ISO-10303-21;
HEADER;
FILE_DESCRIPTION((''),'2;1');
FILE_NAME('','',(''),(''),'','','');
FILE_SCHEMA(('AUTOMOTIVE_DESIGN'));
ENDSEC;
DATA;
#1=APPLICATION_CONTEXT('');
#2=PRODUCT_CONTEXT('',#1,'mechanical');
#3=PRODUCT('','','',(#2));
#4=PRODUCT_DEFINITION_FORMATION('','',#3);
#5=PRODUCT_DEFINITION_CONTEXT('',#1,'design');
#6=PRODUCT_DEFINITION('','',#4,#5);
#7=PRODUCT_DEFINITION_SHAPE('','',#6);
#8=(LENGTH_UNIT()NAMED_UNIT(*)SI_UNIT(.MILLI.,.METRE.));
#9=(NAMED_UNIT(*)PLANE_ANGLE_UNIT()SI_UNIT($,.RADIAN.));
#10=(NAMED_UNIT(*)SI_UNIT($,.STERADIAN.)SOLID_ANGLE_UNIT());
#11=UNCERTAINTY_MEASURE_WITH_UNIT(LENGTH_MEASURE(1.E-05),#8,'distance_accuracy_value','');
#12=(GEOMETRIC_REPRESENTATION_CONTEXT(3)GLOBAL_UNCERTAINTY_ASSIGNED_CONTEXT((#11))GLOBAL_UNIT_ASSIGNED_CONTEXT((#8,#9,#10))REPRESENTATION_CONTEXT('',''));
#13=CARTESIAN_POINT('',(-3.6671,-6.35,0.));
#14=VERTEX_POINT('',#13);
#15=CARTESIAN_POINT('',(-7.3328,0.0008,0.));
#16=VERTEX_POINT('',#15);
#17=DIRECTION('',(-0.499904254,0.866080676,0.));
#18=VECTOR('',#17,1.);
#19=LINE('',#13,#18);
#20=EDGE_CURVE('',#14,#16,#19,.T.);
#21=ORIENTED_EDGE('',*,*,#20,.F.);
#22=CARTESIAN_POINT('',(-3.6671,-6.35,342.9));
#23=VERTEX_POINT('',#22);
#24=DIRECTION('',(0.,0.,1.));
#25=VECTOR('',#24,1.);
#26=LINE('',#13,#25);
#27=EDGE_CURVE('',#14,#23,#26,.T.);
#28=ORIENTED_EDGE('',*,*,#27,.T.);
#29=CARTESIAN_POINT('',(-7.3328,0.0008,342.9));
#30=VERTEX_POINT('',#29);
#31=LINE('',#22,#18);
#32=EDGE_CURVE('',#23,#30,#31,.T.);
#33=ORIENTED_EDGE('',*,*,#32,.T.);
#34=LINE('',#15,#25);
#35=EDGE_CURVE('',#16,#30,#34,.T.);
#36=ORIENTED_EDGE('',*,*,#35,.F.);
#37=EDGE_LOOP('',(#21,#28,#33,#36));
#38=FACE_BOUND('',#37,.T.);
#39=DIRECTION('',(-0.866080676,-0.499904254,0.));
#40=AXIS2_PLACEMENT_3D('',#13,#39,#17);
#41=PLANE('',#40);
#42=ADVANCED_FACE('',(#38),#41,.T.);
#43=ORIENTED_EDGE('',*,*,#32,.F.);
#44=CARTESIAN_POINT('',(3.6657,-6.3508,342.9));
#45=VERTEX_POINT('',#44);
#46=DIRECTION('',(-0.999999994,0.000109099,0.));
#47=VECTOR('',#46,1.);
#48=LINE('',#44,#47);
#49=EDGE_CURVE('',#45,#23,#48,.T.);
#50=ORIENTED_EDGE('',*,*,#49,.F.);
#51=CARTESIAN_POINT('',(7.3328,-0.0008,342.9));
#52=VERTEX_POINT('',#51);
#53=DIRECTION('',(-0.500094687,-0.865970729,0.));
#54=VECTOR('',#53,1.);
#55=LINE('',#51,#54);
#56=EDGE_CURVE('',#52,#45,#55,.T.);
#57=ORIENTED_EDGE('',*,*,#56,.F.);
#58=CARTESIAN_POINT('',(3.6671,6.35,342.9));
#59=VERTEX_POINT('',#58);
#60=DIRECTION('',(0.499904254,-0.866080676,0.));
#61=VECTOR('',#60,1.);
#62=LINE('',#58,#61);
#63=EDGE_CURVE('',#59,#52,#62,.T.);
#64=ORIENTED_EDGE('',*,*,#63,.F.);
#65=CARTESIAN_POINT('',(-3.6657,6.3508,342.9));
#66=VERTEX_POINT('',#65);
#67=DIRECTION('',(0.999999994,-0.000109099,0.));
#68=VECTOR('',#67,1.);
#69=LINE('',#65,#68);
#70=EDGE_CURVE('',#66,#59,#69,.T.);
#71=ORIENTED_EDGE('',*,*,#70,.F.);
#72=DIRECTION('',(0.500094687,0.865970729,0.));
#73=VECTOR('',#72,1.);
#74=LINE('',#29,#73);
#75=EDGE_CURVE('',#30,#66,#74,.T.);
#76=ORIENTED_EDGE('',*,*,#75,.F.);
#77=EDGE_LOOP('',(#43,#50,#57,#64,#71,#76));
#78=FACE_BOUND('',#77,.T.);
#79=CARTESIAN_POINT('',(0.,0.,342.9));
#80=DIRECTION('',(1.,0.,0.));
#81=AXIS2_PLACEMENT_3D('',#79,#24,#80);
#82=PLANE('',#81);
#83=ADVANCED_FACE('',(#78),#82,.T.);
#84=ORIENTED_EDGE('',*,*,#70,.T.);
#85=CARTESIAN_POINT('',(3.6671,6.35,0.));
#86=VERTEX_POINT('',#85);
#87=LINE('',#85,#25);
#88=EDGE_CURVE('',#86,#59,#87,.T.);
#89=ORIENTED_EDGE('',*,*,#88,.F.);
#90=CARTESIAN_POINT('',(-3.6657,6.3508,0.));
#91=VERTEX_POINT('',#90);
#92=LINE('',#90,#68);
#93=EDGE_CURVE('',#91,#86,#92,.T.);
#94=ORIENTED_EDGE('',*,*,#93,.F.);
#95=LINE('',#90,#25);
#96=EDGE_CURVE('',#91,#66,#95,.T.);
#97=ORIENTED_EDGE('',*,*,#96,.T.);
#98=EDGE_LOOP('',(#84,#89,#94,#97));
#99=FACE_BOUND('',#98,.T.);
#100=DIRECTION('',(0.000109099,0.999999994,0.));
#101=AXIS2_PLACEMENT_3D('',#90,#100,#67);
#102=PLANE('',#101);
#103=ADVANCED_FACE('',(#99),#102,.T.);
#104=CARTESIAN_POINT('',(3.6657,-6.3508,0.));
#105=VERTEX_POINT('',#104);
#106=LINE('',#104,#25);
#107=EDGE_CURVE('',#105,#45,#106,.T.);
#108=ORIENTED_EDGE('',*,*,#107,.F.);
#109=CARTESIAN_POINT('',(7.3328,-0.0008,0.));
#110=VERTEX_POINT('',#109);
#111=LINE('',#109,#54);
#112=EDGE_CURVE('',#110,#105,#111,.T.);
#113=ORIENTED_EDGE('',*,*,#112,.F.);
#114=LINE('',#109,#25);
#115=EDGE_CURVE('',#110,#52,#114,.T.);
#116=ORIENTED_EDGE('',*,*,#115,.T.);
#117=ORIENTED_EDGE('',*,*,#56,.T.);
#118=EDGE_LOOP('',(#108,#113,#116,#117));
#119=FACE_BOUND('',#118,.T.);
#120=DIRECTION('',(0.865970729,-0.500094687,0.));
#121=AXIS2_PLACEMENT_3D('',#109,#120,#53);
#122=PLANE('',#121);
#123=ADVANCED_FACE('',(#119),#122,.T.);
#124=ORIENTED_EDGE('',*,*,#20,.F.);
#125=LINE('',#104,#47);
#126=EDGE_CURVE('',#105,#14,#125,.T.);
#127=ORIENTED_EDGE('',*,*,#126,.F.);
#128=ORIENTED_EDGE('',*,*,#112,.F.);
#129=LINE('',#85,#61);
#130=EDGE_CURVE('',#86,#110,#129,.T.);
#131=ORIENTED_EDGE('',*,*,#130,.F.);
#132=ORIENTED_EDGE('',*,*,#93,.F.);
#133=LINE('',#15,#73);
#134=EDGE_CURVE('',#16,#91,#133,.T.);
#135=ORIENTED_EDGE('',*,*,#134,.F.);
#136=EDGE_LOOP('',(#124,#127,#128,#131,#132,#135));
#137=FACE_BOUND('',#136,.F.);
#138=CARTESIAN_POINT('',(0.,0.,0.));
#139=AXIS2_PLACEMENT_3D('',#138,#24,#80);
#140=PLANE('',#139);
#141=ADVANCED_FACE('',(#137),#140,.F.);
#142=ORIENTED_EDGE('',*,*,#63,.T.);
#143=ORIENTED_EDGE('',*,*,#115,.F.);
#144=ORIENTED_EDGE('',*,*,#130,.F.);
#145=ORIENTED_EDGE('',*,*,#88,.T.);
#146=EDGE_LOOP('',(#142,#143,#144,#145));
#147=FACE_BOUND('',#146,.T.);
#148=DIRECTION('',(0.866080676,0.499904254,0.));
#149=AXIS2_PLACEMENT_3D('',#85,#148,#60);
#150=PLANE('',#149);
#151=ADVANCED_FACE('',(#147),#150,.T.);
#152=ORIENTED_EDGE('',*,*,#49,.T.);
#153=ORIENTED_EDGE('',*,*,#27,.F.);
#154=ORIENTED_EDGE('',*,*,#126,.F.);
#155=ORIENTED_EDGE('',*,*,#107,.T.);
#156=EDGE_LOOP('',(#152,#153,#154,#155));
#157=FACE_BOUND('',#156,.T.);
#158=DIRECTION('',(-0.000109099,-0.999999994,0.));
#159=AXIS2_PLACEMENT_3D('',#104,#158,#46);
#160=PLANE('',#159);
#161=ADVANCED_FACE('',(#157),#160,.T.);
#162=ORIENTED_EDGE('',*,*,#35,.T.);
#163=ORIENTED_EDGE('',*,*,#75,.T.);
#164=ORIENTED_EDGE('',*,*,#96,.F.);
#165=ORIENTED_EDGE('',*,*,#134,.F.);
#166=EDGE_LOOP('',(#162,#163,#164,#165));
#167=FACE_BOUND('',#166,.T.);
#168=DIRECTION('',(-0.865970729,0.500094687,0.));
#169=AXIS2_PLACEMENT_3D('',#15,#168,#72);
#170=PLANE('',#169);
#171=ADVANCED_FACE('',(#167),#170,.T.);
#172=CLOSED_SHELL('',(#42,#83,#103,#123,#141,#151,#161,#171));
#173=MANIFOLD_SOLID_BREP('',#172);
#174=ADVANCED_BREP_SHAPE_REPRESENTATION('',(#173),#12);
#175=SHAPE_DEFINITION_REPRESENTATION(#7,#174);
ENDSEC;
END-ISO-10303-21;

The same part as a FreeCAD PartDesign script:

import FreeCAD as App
import Part
import Sketcher
from FreeCAD import Vector
Q = App.Units.Quantity


def add_polygon(sketch, points):
    """Adds a closed chain of lines whose ends are joined by coincident constraints."""
    first, n = sketch.GeometryCount, len(points)
    for a, b in zip(points, points[1:] + points[:1]):
        sketch.addGeometry(Part.LineSegment(App.Vector(*a, 0), App.Vector(*b, 0)), False)
    for i in range(n):
        sketch.addConstraint(Sketcher.Constraint("Coincident", first + i, 2, first + (i + 1) % n, 1))

doc = App.newDocument("Part")
body = doc.addObject("PartDesign::Body", "Body")

# Sketch on XY plane
sketch1 = doc.addObject("Sketcher::SketchObject", "Sketch")
body.addObject(sketch1)
sketch1.AttachmentSupport = (doc.XY_Plane, [""])
sketch1.MapMode = "FlatFace"
add_polygon(sketch1, [(7, 0), (4, 6), (-4, 6), (-7, 0), (-4, -6), (4, -6)])  # lines 0-5
sketch1.addConstraint(Sketcher.Constraint("Symmetric", 0, 2, 3, 2, -1, 1))
sketch1.addConstraint(Sketcher.Constraint("Symmetric", 1, 2, 4, 2, -1, 1))
sketch1.addConstraint(Sketcher.Constraint("Symmetric", 2, 2, 5, 2, -1, 1))
sketch1.addConstraint(Sketcher.Constraint("Equal", 0, 1))
sketch1.addConstraint(Sketcher.Constraint("Equal", 1, 2))
sketch1.addConstraint(Sketcher.Constraint("DistanceY", -1, 1, 0, 2, Q("0.25 in")))
sketch1.addConstraint(Sketcher.Constraint("DistanceY", 2, 2, 1, 2, Q("0.25 in")))
sketch1.addConstraint(Sketcher.Constraint("DistanceX", 2, 2, 4, 2, Q("0.433 in")))
sketch1.addConstraint(Sketcher.Constraint("Distance", 0, Q("0.2887 in")))
pad1 = doc.addObject("PartDesign::Pad", "Pad")
body.addObject(pad1)
pad1.Profile = sketch1
pad1.Length = Q("13.5 in")

doc.recompute()
